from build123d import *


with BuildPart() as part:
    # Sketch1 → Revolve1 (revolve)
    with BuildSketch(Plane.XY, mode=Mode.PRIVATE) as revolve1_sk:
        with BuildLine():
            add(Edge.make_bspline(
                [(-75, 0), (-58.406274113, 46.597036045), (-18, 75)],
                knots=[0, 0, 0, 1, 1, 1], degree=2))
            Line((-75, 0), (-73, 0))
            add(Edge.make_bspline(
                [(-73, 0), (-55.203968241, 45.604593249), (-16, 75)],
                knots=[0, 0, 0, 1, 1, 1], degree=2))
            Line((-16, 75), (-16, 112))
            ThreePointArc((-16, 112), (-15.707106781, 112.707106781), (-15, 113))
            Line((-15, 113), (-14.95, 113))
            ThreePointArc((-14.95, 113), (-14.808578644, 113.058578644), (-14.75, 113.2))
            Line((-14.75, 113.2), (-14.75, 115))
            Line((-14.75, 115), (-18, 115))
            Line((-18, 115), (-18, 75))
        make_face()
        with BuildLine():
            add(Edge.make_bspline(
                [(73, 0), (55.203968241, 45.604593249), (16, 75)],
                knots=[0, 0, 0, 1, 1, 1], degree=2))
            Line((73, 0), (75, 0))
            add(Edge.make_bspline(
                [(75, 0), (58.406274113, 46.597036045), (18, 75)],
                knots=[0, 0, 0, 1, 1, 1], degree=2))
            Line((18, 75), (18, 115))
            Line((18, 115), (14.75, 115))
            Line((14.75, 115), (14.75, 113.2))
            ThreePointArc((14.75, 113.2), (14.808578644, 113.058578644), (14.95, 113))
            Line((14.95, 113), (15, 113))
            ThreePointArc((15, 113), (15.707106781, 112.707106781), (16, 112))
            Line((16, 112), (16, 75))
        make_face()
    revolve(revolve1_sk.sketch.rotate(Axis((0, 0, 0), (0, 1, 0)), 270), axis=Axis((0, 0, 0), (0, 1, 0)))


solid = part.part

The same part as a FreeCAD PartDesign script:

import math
import FreeCAD as App
import Part
import Sketcher
from FreeCAD import Vector
Q = App.Units.Quantity

doc = App.newDocument("Part")
body = doc.addObject("PartDesign::Body", "Body")

# Sketch on XY plane
sketch1 = body.newObject("Sketcher::SketchObject", "Sketch")
sketch1.AttachmentSupport = (doc.getObject("XY_Plane"), [""])
sketch1.MapMode = "FlatFace"
sketch1.addGeometry(Part.BSplineCurve([Vector(-75, 0, 0), Vector(-58.406274, 46.597036, 0), Vector(-18, 75, 0)], [3, 3], [0, 1], False, 2, [1, 1, 1], False), False)
sketch1.addGeometry(Part.LineSegment(Vector(-75, 0, 0), Vector(-73, 0, 0)), False)
sketch1.addGeometry(Part.BSplineCurve([Vector(-73, 0, 0), Vector(-55.203968, 45.604593, 0), Vector(-16, 75, 0)], [3, 3], [0, 1], False, 2, [1, 1, 1], False), False)
sketch1.addGeometry(Part.LineSegment(Vector(-16, 75, 0), Vector(-16, 112, 0)), False)
sketch1.addGeometry(Part.ArcOfCircle(Part.Circle(Vector(-15, 112, 0), Vector(0, 0, 1), 1), math.radians(90), math.radians(180)), False)
sketch1.addGeometry(Part.LineSegment(Vector(-15, 113, 0), Vector(-14.95, 113, 0)), False)
sketch1.addGeometry(Part.ArcOfCircle(Part.Circle(Vector(-14.95, 113.2, 0), Vector(0, 0, 1), 0.2), math.radians(-90), math.radians(0)), False)
sketch1.addGeometry(Part.LineSegment(Vector(-14.75, 113.2, 0), Vector(-14.75, 115, 0)), False)
sketch1.addGeometry(Part.LineSegment(Vector(-14.75, 115, 0), Vector(-18, 115, 0)), False)
sketch1.addGeometry(Part.LineSegment(Vector(-18, 115, 0), Vector(-18, 75, 0)), False)
sketch1.addGeometry(Part.BSplineCurve([Vector(73, 0, 0), Vector(55.203968, 45.604593, 0), Vector(16, 75, 0)], [3, 3], [0, 1], False, 2, [1, 1, 1], False), False)
sketch1.addGeometry(Part.LineSegment(Vector(73, 0, 0), Vector(75, 0, 0)), False)
sketch1.addGeometry(Part.BSplineCurve([Vector(75, 0, 0), Vector(58.406274, 46.597036, 0), Vector(18, 75, 0)], [3, 3], [0, 1], False, 2, [1, 1, 1], False), False)
sketch1.addGeometry(Part.LineSegment(Vector(18, 75, 0), Vector(18, 115, 0)), False)
sketch1.addGeometry(Part.LineSegment(Vector(18, 115, 0), Vector(14.75, 115, 0)), False)
sketch1.addGeometry(Part.LineSegment(Vector(14.75, 115, 0), Vector(14.75, 113.2, 0)), False)
sketch1.addGeometry(Part.ArcOfCircle(Part.Circle(Vector(14.95, 113.2, 0), Vector(0, 0, 1), 0.2), math.radians(-180), math.radians(-90)), False)
sketch1.addGeometry(Part.LineSegment(Vector(14.95, 113, 0), Vector(15, 113, 0)), False)
sketch1.addGeometry(Part.ArcOfCircle(Part.Circle(Vector(15, 112, 0), Vector(0, 0, 1), 1), math.radians(0), math.radians(90)), False)
sketch1.addGeometry(Part.LineSegment(Vector(16, 112, 0), Vector(16, 75, 0)), False)
sketch1.addConstraint(Sketcher.Constraint("Block", 0))
sketch1.addConstraint(Sketcher.Constraint("Block", 2))
sketch1.addConstraint(Sketcher.Constraint("Block", 10))
sketch1.addConstraint(Sketcher.Constraint("Block", 12))
sketch1.addConstraint(Sketcher.Constraint("Coincident", 0, 1, 1, 1))
sketch1.addConstraint(Sketcher.Constraint("Coincident", 1, 2, 2, 1))
sketch1.addConstraint(Sketcher.Constraint("Coincident", 2, 2, 3, 1))
sketch1.addConstraint(Sketcher.Constraint("Tangent", 3, 2, 4, 2))
sketch1.addConstraint(Sketcher.Constraint("Tangent", 4, 1, 5, 1))
sketch1.addConstraint(Sketcher.Constraint("Tangent", 5, 2, 6, 1))
sketch1.addConstraint(Sketcher.Constraint("Tangent", 6, 2, 7, 1))
sketch1.addConstraint(Sketcher.Constraint("Coincident", 7, 2, 8, 1))
sketch1.addConstraint(Sketcher.Constraint("Coincident", 8, 2, 9, 1))
sketch1.addConstraint(Sketcher.Constraint("Coincident", 9, 2, 0, 2))
sketch1.addConstraint(Sketcher.Constraint("Coincident", 10, 1, 11, 1))
sketch1.addConstraint(Sketcher.Constraint("Coincident", 11, 2, 12, 1))
sketch1.addConstraint(Sketcher.Constraint("Coincident", 12, 2, 13, 1))
sketch1.addConstraint(Sketcher.Constraint("Coincident", 13, 2, 14, 1))
sketch1.addConstraint(Sketcher.Constraint("Coincident", 14, 2, 15, 1))
sketch1.addConstraint(Sketcher.Constraint("Tangent", 15, 2, 16, 1))
sketch1.addConstraint(Sketcher.Constraint("Tangent", 16, 2, 17, 1))
sketch1.addConstraint(Sketcher.Constraint("Tangent", 17, 2, 18, 2))
sketch1.addConstraint(Sketcher.Constraint("Tangent", 18, 1, 19, 1))
sketch1.addConstraint(Sketcher.Constraint("Coincident", 19, 2, 10, 2))
sketch1.addConstraint(Sketcher.Constraint("Vertical", 3))
sketch1.addConstraint(Sketcher.Constraint("Horizontal", 5))
sketch1.addConstraint(Sketcher.Constraint("Vertical", 7))
sketch1.addConstraint(Sketcher.Constraint("Horizontal", 8))
sketch1.addConstraint(Sketcher.Constraint("Vertical", 9))
sketch1.addConstraint(Sketcher.Constraint("Vertical", 13))
sketch1.addConstraint(Sketcher.Constraint("Horizontal", 14))
sketch1.addConstraint(Sketcher.Constraint("Vertical", 15))
sketch1.addConstraint(Sketcher.Constraint("Horizontal", 17))
sketch1.addConstraint(Sketcher.Constraint("Vertical", 19))
sketch1.addConstraint(Sketcher.Constraint("Equal", 6, 16))
sketch1.addConstraint(Sketcher.Constraint("Equal", 4, 18))
sketch1.addConstraint(Sketcher.Constraint("Symmetric", 6, 3, 16, 3, -2))
sketch1.addConstraint(Sketcher.Constraint("Horizontal", 8, 2, 13, 2))
sketch1.addConstraint(Sketcher.Constraint("Radius", 4, Q("1 mm")))
sketch1.addConstraint(Sketcher.Constraint("Radius", 6, Q("0.2 mm")))
sketch1.addConstraint(Sketcher.Constraint("DistanceY", 3, 1, 3, 2, Q("37 mm")))
sketch1.addConstraint(Sketcher.Constraint("DistanceY", 9, 2, 9, 1, Q("40 mm")))
sketch1.addConstraint(Sketcher.Constraint("DistanceX", 5, 1, 5, 2, Q("0.05 mm")))
revolution = body.newObject("PartDesign::Revolution", "Revolution")
revolution.Profile = sketch1
revolution.ReferenceAxis = (sketch1, ["V_Axis"])
revolution.Angle = 360

doc.recompute()
